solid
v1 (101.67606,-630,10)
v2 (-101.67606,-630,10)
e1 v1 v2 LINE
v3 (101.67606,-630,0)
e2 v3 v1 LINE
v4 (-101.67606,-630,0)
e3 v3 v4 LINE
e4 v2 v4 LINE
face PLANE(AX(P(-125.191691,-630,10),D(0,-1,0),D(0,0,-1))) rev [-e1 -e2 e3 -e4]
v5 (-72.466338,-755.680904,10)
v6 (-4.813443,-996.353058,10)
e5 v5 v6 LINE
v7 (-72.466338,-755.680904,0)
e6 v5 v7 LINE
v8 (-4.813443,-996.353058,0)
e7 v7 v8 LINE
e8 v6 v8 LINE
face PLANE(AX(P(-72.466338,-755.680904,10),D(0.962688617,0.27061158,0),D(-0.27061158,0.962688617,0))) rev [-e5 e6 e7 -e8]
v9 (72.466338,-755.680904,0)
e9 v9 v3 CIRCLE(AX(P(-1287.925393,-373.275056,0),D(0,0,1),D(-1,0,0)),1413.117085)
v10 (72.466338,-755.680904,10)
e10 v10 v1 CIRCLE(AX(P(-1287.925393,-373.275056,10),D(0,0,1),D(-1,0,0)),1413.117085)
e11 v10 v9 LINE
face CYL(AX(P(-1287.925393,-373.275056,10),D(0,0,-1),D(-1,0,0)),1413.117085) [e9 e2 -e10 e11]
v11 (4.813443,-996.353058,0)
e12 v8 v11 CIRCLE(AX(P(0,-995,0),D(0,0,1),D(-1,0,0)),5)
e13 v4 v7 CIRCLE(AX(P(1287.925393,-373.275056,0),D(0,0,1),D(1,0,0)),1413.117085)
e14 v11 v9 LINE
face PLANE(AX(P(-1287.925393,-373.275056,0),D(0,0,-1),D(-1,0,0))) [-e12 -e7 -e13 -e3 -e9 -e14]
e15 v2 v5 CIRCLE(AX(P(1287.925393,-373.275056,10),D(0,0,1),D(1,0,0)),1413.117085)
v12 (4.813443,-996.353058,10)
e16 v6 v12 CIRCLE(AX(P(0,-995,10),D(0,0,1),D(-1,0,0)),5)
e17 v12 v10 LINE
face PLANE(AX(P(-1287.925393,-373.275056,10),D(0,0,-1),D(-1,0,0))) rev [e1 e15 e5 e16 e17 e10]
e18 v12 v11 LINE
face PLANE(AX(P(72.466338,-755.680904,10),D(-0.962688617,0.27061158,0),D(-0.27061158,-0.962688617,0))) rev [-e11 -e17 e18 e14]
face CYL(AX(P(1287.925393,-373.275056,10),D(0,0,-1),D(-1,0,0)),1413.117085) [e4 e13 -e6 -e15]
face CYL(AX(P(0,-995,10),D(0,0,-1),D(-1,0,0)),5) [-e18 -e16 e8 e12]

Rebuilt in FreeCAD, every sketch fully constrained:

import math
import FreeCAD as App
import Part
import Sketcher

V = App.Vector

doc = App.newDocument("Part")
body = doc.addObject("PartDesign::Body", "Body")

# Sketch on XY plane
sketch1 = body.newObject("Sketcher::SketchObject", "Sketch")
sketch1.AttachmentSupport = (doc.getObject("XY_Plane"), [""])
sketch1.MapMode = "FlatFace"
sketch1.addGeometry([
    Part.LineSegment(V(75, 0, 0), V(-75, 0, 0)),  # 0
    Part.ArcOfCircle(Part.Circle(V(1287.925393, -373.275056, 0), V(0, 0, 1), 1413.117085), math.radians(164.683541), math.radians(195.700663)),  # 1
    Part.LineSegment(V(-72.466338, -755.680904, 0), V(-4.813443, -996.353058, 0)),  # 2
    Part.ArcOfCircle(Part.Circle(V(0, -995, 0), V(0, 0, 1), 5), math.radians(-164.299337), math.radians(-90)),  # 3
    Part.ArcOfCircle(Part.Circle(V(0, -995, 0), V(0, 0, 1), 5), math.radians(-90), math.radians(-15.700663)),  # 4
    Part.LineSegment(V(4.813443, -996.353058, 0), V(72.466338, -755.680904, 0)),  # 5
    Part.ArcOfCircle(Part.Circle(V(-1287.925393, -373.275056, 0), V(0, 0, 1), 1413.117085), math.radians(-15.700663), math.radians(15.316459)),  # 6
], False)
sketch1.addConstraint([
    Sketcher.Constraint("Coincident", 0, 2, 1, 1),
    Sketcher.Constraint("Tangent", 1, 2, 2, 1),
    Sketcher.Constraint("Tangent", 2, 2, 3, 1),
    Sketcher.Constraint("Tangent", 3, 2, 4, 1),
    Sketcher.Constraint("Tangent", 4, 2, 5, 1),
    Sketcher.Constraint("Tangent", 5, 2, 6, 1),
    Sketcher.Constraint("Coincident", 6, 2, 0, 1),
    Sketcher.Constraint("Horizontal", 0),
    Sketcher.Constraint("Equal", 3, 4),
    Sketcher.Constraint("Equal", 1, 6),
    Sketcher.Constraint("Symmetric", 1, 3, 6, 3, -2),
    Sketcher.Constraint("PointOnObject", 3, 3, -2),
    Sketcher.Constraint("PointOnObject", 0, 2, -1),
    Sketcher.Constraint("PointOnObject", 3, 2, -2),
    Sketcher.Constraint("Radius", 3, 5.0),
    Sketcher.Constraint("DistanceX", 0, 2, 0, 1, 150.0),
    Sketcher.Constraint("Distance", 2, 250.0),
    Sketcher.Constraint("DistanceY", 3, 3, -1, 1, 995.0),
    Sketcher.Constraint("Radius", 1, 1413.117085),
])
pad1 = body.newObject("PartDesign::Pad", "Pad")
pad1.Profile = sketch1
pad1.Length = 10

# Sketch on XY plane
sketch2 = body.newObject("Sketcher::SketchObject", "Sketch001")
sketch2.AttachmentSupport = (doc.getObject("XY_Plane"), [""])
sketch2.MapMode = "FlatFace"
sketch2.addGeometry([
    Part.LineSegment(V(125.191691, 0, 0), V(125.191691, -630, 0)),
    Part.LineSegment(V(125.191691, -630, 0), V(-125.191691, -630, 0)),
    Part.LineSegment(V(-125.191691, -630, 0), V(-125.191691, 0, 0)),
    Part.LineSegment(V(-125.191691, 0, 0), V(125.191691, 0, 0)),
], False)
sketch2.addConstraint([
    Sketcher.Constraint("Coincident", 0, 2, 1, 1),
    Sketcher.Constraint("Coincident", 1, 2, 2, 1),
    Sketcher.Constraint("Coincident", 2, 2, 3, 1),
    Sketcher.Constraint("Coincident", 3, 2, 0, 1),
    Sketcher.Constraint("Vertical", 0),
    Sketcher.Constraint("Horizontal", 1),
    Sketcher.Constraint("Vertical", 2),
    Sketcher.Constraint("Horizontal", 3),
    Sketcher.Constraint("Symmetric", 2, 2, 3, 2, -1, 1),
    Sketcher.Constraint("DistanceY", 0, 2, 0, 1, 630.0),
    Sketcher.Constraint("DistanceX", 1, 2, 1, 1, 250.383383),
])
pocket1 = body.newObject("PartDesign::Pocket", "Pocket")
pocket1.Profile = sketch2
pocket1.Type = "ThroughAll"
pocket1.Reversed = True

doc.recompute()
